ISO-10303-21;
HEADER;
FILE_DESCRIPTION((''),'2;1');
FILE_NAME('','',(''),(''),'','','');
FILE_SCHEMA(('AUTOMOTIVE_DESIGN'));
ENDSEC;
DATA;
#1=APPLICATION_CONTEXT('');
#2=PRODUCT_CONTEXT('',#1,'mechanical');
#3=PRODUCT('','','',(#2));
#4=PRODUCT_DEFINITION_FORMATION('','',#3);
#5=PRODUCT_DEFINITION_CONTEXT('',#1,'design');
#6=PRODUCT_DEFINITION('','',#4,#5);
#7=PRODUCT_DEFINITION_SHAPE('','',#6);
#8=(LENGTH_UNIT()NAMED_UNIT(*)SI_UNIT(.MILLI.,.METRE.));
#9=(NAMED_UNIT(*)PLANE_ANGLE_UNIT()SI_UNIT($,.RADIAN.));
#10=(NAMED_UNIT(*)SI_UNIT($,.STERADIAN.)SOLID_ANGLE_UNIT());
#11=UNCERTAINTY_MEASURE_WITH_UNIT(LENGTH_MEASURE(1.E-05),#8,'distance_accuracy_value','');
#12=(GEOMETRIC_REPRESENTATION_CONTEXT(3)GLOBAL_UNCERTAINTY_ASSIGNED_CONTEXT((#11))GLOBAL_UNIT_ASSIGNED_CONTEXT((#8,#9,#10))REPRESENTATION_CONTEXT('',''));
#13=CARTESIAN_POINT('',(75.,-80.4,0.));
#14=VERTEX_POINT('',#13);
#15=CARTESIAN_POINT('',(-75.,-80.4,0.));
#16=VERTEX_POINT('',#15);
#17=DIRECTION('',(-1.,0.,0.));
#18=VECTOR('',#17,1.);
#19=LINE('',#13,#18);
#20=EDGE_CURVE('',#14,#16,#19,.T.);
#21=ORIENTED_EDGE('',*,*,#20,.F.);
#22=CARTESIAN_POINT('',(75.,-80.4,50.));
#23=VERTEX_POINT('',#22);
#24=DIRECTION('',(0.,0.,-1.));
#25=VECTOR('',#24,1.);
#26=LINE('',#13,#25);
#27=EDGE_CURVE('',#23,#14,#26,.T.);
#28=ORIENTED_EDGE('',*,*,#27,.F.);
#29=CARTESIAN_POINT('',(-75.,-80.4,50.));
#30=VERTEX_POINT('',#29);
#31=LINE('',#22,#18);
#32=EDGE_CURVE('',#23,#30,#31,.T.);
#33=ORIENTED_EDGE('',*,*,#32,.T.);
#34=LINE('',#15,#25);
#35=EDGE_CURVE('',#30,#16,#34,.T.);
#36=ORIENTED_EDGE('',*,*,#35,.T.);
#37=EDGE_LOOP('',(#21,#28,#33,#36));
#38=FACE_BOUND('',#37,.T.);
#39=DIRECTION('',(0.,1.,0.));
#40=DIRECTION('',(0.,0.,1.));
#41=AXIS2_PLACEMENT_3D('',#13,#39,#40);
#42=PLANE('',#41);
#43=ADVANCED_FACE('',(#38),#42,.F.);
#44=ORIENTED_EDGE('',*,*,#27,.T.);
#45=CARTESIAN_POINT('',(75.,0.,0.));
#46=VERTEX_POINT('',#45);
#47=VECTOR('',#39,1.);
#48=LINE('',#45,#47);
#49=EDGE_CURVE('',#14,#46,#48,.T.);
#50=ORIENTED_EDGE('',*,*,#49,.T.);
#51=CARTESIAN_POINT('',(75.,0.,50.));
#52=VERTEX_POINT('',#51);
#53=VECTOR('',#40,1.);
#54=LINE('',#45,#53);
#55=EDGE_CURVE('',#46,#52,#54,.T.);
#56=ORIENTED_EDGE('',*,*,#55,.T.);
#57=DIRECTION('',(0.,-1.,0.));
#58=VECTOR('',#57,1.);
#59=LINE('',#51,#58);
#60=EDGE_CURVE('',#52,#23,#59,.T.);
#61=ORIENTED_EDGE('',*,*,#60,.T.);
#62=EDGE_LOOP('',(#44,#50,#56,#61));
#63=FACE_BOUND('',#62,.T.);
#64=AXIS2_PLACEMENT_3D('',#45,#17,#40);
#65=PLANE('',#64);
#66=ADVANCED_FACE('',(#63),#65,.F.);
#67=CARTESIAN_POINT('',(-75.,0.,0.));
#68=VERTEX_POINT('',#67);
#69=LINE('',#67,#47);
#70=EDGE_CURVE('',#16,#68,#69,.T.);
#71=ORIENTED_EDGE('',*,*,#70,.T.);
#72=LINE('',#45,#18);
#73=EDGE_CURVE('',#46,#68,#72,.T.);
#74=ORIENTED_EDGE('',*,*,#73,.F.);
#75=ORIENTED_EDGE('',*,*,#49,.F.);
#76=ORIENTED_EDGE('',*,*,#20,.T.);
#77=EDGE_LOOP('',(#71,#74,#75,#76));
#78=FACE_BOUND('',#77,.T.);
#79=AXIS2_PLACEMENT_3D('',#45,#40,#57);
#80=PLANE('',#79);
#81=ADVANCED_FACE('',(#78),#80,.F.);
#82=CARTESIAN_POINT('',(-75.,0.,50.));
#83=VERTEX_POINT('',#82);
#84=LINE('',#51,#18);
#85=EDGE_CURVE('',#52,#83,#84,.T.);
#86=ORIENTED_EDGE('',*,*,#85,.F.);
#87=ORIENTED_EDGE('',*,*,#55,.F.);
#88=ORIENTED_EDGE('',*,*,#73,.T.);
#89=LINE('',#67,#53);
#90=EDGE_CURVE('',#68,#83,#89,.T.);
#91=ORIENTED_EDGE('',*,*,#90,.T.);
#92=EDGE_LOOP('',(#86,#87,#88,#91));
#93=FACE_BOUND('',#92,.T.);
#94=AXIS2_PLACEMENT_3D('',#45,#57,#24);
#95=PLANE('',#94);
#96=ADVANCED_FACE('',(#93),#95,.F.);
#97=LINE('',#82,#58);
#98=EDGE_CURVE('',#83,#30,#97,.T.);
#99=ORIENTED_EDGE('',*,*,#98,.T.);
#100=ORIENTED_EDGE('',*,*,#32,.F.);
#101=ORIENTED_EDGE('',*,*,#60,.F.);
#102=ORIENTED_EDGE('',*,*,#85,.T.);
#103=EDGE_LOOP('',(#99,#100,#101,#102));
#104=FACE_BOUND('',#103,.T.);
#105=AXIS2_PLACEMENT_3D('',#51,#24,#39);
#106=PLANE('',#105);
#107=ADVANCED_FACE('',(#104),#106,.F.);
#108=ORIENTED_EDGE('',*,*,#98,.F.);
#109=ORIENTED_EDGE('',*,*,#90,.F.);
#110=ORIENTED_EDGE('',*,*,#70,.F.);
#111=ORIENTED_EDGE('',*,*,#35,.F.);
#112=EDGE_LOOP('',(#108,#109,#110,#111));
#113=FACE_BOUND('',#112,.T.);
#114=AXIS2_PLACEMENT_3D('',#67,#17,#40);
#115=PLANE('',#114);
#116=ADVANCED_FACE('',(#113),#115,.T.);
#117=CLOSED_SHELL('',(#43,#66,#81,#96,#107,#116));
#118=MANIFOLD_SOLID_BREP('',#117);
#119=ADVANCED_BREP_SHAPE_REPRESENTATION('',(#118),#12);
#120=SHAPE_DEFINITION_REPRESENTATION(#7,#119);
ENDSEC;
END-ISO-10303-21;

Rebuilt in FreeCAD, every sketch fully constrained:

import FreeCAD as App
import Part
import Sketcher
from FreeCAD import Vector
Q = App.Units.Quantity

doc = App.newDocument("Part")
body = doc.addObject("PartDesign::Body", "Body")

# Sketch on YZ plane
sketch1 = body.newObject("Sketcher::SketchObject", "Sketch")
sketch1.AttachmentSupport = (doc.getObject("YZ_Plane"), [""])
sketch1.MapMode = "FlatFace"
sketch1.addGeometry([
    Part.LineSegment(Vector(0, 50, 0), Vector(-80.4, 50, 0)),
    Part.LineSegment(Vector(-80.4, 50, 0), Vector(-80.4, 0, 0)),
    Part.LineSegment(Vector(-80.4, 0, 0), Vector(0, 0, 0)),
    Part.LineSegment(Vector(0, 0, 0), Vector(0, 50, 0)),
], False)
sketch1.addConstraint([
    Sketcher.Constraint("Coincident", 0, 2, 1, 1),
    Sketcher.Constraint("Coincident", 1, 2, 2, 1),
    Sketcher.Constraint("Coincident", 2, 2, 3, 1),
    Sketcher.Constraint("Coincident", 3, 2, 0, 1),
    Sketcher.Constraint("Horizontal", 0),
    Sketcher.Constraint("Vertical", 1),
    Sketcher.Constraint("Horizontal", 2),
    Sketcher.Constraint("Vertical", 3),
    Sketcher.Constraint("Coincident", 2, 2, -1, 1),
    Sketcher.Constraint("DistanceY", 1, 2, 1, 1, Q("50 mm")),
    Sketcher.Constraint("DistanceX", 0, 2, 0, 1, Q("80.4 mm")),
])
pad1 = body.newObject("PartDesign::Pad", "Pad")
pad1.Profile = sketch1
pad1.Length = 150
pad1.Midplane = True

doc.recompute()
